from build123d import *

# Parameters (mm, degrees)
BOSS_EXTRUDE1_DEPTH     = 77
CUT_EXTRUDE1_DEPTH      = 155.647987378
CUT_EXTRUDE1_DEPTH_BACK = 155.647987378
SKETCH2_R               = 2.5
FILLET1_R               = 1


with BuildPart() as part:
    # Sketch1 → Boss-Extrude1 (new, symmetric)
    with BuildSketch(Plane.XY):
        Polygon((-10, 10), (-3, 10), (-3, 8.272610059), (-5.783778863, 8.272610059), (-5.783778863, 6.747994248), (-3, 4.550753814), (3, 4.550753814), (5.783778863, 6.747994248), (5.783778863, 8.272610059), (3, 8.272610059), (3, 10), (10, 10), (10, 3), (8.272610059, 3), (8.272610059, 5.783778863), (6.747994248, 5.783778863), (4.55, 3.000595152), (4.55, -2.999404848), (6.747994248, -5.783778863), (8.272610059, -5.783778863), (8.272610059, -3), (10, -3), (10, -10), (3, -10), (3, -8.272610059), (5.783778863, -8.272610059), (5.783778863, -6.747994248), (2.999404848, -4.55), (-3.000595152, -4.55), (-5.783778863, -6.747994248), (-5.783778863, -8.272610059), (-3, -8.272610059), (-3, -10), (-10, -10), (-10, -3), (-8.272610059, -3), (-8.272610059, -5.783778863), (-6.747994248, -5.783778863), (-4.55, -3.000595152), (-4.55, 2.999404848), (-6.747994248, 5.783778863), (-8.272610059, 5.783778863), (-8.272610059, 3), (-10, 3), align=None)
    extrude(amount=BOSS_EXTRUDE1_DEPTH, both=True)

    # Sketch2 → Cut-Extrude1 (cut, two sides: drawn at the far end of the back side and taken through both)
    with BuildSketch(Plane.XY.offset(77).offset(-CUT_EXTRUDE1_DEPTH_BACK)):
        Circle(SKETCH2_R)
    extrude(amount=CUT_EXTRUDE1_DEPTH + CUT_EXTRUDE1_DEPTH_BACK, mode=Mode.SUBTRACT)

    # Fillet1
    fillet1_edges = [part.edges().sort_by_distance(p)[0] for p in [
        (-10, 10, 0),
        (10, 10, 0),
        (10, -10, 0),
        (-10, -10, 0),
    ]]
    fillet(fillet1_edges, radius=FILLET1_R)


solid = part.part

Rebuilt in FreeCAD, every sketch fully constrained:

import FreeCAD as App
import Part
import Sketcher


def edges_at(feature, points):
    """Names of the edges that pass closest to the given points."""
    edges = feature.Shape.Edges
    near = lambda p: min(range(len(edges)), key=lambda i: edges[i].distToShape(Part.Vertex(*p))[0])
    return sorted({f"Edge{near(p) + 1}" for p in points})

doc = App.newDocument("Part")
params = doc.addObject("Spreadsheet::Sheet", "Params")
for row, (alias, value) in enumerate([
    ("sketch1_width", "7 mm"),
    ("sketch1_width2", "6 mm"),
    ("pad1_length", "154 mm"),
    ("sketch2_diameter", "5 mm"),
    ("fillet_radius", "1 mm"),
], start=1):
    params.set(f"A{row}", alias)
    params.set(f"B{row}", "=" + value)
    params.setAlias(f"B{row}", alias)

body = doc.addObject("PartDesign::Body", "Body")

# Sketch on XY plane
sketch1 = body.newObject("Sketcher::SketchObject", "Sketch")
sketch1.AttachmentSupport = (doc.getObject("XY_Plane"), [""])
sketch1.MapMode = "FlatFace"
sketch1.addGeometry([
    Part.LineSegment(App.Vector(-3, 10, 0), App.Vector(-10, 10, 0)),  # 0
    Part.LineSegment(App.Vector(-10, 10, 0), App.Vector(-10, 3, 0)),  # 1
    Part.LineSegment(App.Vector(-10, 3, 0), App.Vector(-8.3, 3, 0)),  # 2
    Part.LineSegment(App.Vector(-8.3, 3, 0), App.Vector(-8.3, 5.8, 0)),  # 3
    Part.LineSegment(App.Vector(-8.3, 5.8, 0), App.Vector(-6.7, 5.8, 0)),  # 4
    Part.LineSegment(App.Vector(-6.7, 5.8, 0), App.Vector(-4.5, 3, 0)),  # 5
    Part.LineSegment(App.Vector(-4.5, 3, 0), App.Vector(-4.5, -3, 0)),  # 6
    Part.LineSegment(App.Vector(-4.5, -3, 0), App.Vector(-6.7, -5.8, 0)),  # 7
    Part.LineSegment(App.Vector(-6.7, -5.8, 0), App.Vector(-8.3, -5.8, 0)),  # 8
    Part.LineSegment(App.Vector(-8.3, -5.8, 0), App.Vector(-8.3, -3, 0)),  # 9
    Part.LineSegment(App.Vector(-8.3, -3, 0), App.Vector(-10, -3, 0)),  # 10
    Part.LineSegment(App.Vector(-10, -3, 0), App.Vector(-10, -10, 0)),  # 11
    Part.LineSegment(App.Vector(-10, -10, 0), App.Vector(-3, -10, 0)),  # 12
    Part.LineSegment(App.Vector(-3, -10, 0), App.Vector(-3, -8.3, 0)),  # 13
    Part.LineSegment(App.Vector(-3, -8.3, 0), App.Vector(-5.8, -8.3, 0)),  # 14
    Part.LineSegment(App.Vector(-5.8, -8.3, 0), App.Vector(-5.8, -6.7, 0)),  # 15
    Part.LineSegment(App.Vector(-5.8, -6.7, 0), App.Vector(-3, -4.5, 0)),  # 16
    Part.LineSegment(App.Vector(-3, -4.5, 0), App.Vector(3, -4.5, 0)),  # 17
    Part.LineSegment(App.Vector(3, -4.5, 0), App.Vector(5.8, -6.7, 0)),  # 18
    Part.LineSegment(App.Vector(5.8, -6.7, 0), App.Vector(5.8, -8.3, 0)),  # 19
    Part.LineSegment(App.Vector(5.8, -8.3, 0), App.Vector(3, -8.3, 0)),  # 20
    Part.LineSegment(App.Vector(3, -8.3, 0), App.Vector(3, -10, 0)),  # 21
    Part.LineSegment(App.Vector(3, -10, 0), App.Vector(10, -10, 0)),  # 22
    Part.LineSegment(App.Vector(10, -10, 0), App.Vector(10, -3, 0)),  # 23
    Part.LineSegment(App.Vector(10, -3, 0), App.Vector(8.3, -3, 0)),  # 24
    Part.LineSegment(App.Vector(8.3, -3, 0), App.Vector(8.3, -5.8, 0)),  # 25
    Part.LineSegment(App.Vector(8.3, -5.8, 0), App.Vector(6.7, -5.8, 0)),  # 26
    Part.LineSegment(App.Vector(6.7, -5.8, 0), App.Vector(4.5, -3, 0)),  # 27
    Part.LineSegment(App.Vector(4.5, -3, 0), App.Vector(4.5, 3, 0)),  # 28
    Part.LineSegment(App.Vector(4.5, 3, 0), App.Vector(6.7, 5.8, 0)),  # 29
    Part.LineSegment(App.Vector(6.7, 5.8, 0), App.Vector(8.3, 5.8, 0)),  # 30
    Part.LineSegment(App.Vector(8.3, 5.8, 0), App.Vector(8.3, 3, 0)),  # 31
    Part.LineSegment(App.Vector(8.3, 3, 0), App.Vector(10, 3, 0)),  # 32
    Part.LineSegment(App.Vector(10, 3, 0), App.Vector(10, 10, 0)),  # 33
    Part.LineSegment(App.Vector(10, 10, 0), App.Vector(3, 10, 0)),  # 34
    Part.LineSegment(App.Vector(3, 10, 0), App.Vector(3, 8.3, 0)),  # 35
    Part.LineSegment(App.Vector(3, 8.3, 0), App.Vector(5.8, 8.3, 0)),  # 36
    Part.LineSegment(App.Vector(5.8, 8.3, 0), App.Vector(5.8, 6.7, 0)),  # 37
    Part.LineSegment(App.Vector(5.8, 6.7, 0), App.Vector(3, 4.6, 0)),  # 38
    Part.LineSegment(App.Vector(3, 4.6, 0), App.Vector(-3, 4.6, 0)),  # 39
    Part.LineSegment(App.Vector(-3, 4.6, 0), App.Vector(-5.8, 6.7, 0)),  # 40
    Part.LineSegment(App.Vector(-5.8, 6.7, 0), App.Vector(-5.8, 8.3, 0)),  # 41
    Part.LineSegment(App.Vector(-5.8, 8.3, 0), App.Vector(-3, 8.3, 0)),  # 42
    Part.LineSegment(App.Vector(-3, 8.3, 0), App.Vector(-3, 10, 0)),  # 43
], False)
sketch1.addConstraint([
    Sketcher.Constraint("Coincident", 0, 2, 1, 1),
    Sketcher.Constraint("Coincident", 1, 2, 2, 1),
    Sketcher.Constraint("Coincident", 2, 2, 3, 1),
    Sketcher.Constraint("Coincident", 3, 2, 4, 1),
    Sketcher.Constraint("Coincident", 4, 2, 5, 1),
    Sketcher.Constraint("Coincident", 5, 2, 6, 1),
    Sketcher.Constraint("Coincident", 6, 2, 7, 1),
    Sketcher.Constraint("Coincident", 7, 2, 8, 1),
    Sketcher.Constraint("Coincident", 8, 2, 9, 1),
    Sketcher.Constraint("Coincident", 9, 2, 10, 1),
    Sketcher.Constraint("Coincident", 10, 2, 11, 1),
    Sketcher.Constraint("Coincident", 11, 2, 12, 1),
    Sketcher.Constraint("Coincident", 12, 2, 13, 1),
    Sketcher.Constraint("Coincident", 13, 2, 14, 1),
    Sketcher.Constraint("Coincident", 14, 2, 15, 1),
    Sketcher.Constraint("Coincident", 15, 2, 16, 1),
    Sketcher.Constraint("Coincident", 16, 2, 17, 1),
    Sketcher.Constraint("Coincident", 17, 2, 18, 1),
    Sketcher.Constraint("Coincident", 18, 2, 19, 1),
    Sketcher.Constraint("Coincident", 19, 2, 20, 1),
    Sketcher.Constraint("Coincident", 20, 2, 21, 1),
    Sketcher.Constraint("Coincident", 21, 2, 22, 1),
    Sketcher.Constraint("Coincident", 22, 2, 23, 1),
    Sketcher.Constraint("Coincident", 23, 2, 24, 1),
    Sketcher.Constraint("Coincident", 24, 2, 25, 1),
    Sketcher.Constraint("Coincident", 25, 2, 26, 1),
    Sketcher.Constraint("Coincident", 26, 2, 27, 1),
    Sketcher.Constraint("Coincident", 27, 2, 28, 1),
    Sketcher.Constraint("Coincident", 28, 2, 29, 1),
    Sketcher.Constraint("Coincident", 29, 2, 30, 1),
    Sketcher.Constraint("Coincident", 30, 2, 31, 1),
    Sketcher.Constraint("Coincident", 31, 2, 32, 1),
    Sketcher.Constraint("Coincident", 32, 2, 33, 1),
    Sketcher.Constraint("Coincident", 33, 2, 34, 1),
    Sketcher.Constraint("Coincident", 34, 2, 35, 1),
    Sketcher.Constraint("Coincident", 35, 2, 36, 1),
    Sketcher.Constraint("Coincident", 36, 2, 37, 1),
    Sketcher.Constraint("Coincident", 37, 2, 38, 1),
    Sketcher.Constraint("Coincident", 38, 2, 39, 1),
    Sketcher.Constraint("Coincident", 39, 2, 40, 1),
    Sketcher.Constraint("Coincident", 40, 2, 41, 1),
    Sketcher.Constraint("Coincident", 41, 2, 42, 1),
    Sketcher.Constraint("Coincident", 42, 2, 43, 1),
    Sketcher.Constraint("Coincident", 43, 2, 0, 1),
    Sketcher.Constraint("Horizontal", 0),
    Sketcher.Constraint("Vertical", 1),
    Sketcher.Constraint("Horizontal", 2),
    Sketcher.Constraint("Vertical", 3),
    Sketcher.Constraint("Horizontal", 4),
    Sketcher.Constraint("Vertical", 6),
    Sketcher.Constraint("Horizontal", 8),
    Sketcher.Constraint("Vertical", 9),
    Sketcher.Constraint("Horizontal", 10),
    Sketcher.Constraint("Vertical", 11),
    Sketcher.Constraint("Horizontal", 12),
    Sketcher.Constraint("Vertical", 13),
    Sketcher.Constraint("Horizontal", 14),
    Sketcher.Constraint("Vertical", 15),
    Sketcher.Constraint("Horizontal", 17),
    Sketcher.Constraint("Vertical", 19),
    Sketcher.Constraint("Horizontal", 20),
    Sketcher.Constraint("Vertical", 21),
    Sketcher.Constraint("Horizontal", 22),
    Sketcher.Constraint("Vertical", 23),
    Sketcher.Constraint("Horizontal", 24),
    Sketcher.Constraint("Vertical", 25),
    Sketcher.Constraint("Horizontal", 26),
    Sketcher.Constraint("Vertical", 28),
    Sketcher.Constraint("Horizontal", 30),
    Sketcher.Constraint("Vertical", 31),
    Sketcher.Constraint("Horizontal", 32),
    Sketcher.Constraint("Vertical", 33),
    Sketcher.Constraint("Horizontal", 34),
    Sketcher.Constraint("Vertical", 35),
    Sketcher.Constraint("Horizontal", 36),
    Sketcher.Constraint("Vertical", 37),
    Sketcher.Constraint("Horizontal", 39),
    Sketcher.Constraint("Vertical", 41),
    Sketcher.Constraint("Horizontal", 42),
    Sketcher.Constraint("Vertical", 43),
    Sketcher.Constraint("Symmetric", 0, 2, 22, 2, -1, 1),
    Sketcher.Constraint("Symmetric", 2, 2, 24, 2, -1, 1),
    Sketcher.Constraint("Symmetric", 4, 2, 26, 2, -1, 1),
    Sketcher.Constraint("Symmetric", 5, 2, 27, 2, -1, 1),
    Sketcher.Constraint("Symmetric", 7, 2, 29, 2, -1, 1),
    Sketcher.Constraint("Symmetric", 9, 2, 31, 2, -1, 1),
    Sketcher.Constraint("Symmetric", 11, 2, 33, 2, -1, 1),
    Sketcher.Constraint("Symmetric", 13, 2, 35, 2, -1, 1),
    Sketcher.Constraint("Symmetric", 15, 2, 37, 2, -1, 1),
    Sketcher.Constraint("Symmetric", 18, 2, 40, 2, -1, 1),
    Sketcher.Constraint("Symmetric", 20, 2, 42, 2, -1, 1),
    Sketcher.Constraint("Symmetric", 15, 2, 18, 2, -2),
    Sketcher.Constraint("Symmetric", 13, 2, 20, 2, -2),
    Sketcher.Constraint("Symmetric", 11, 2, 22, 2, -2),
    Sketcher.Constraint("Symmetric", 9, 2, 24, 2, -2),
    Sketcher.Constraint("Symmetric", 7, 2, 26, 2, -2),
    Sketcher.Constraint("Parallel", 7, 29),
    Sketcher.Constraint("Vertical", 35, 2, 38, 2),
    Sketcher.Constraint("Vertical", 13, 2, 39, 2),
    Sketcher.Constraint("Equal", 17, 39),
    Sketcher.Constraint("Equal", 34, 1),
    Sketcher.Constraint("Equal", 42, 3),
    Sketcher.Constraint("Equal", 39, 6),
    Sketcher.Constraint("Equal", 32, 13),
    Sketcher.Constraint("Equal", 30, 15),
    Sketcher.Constraint("Equal", 7, 16),
    Sketcher.Constraint("Equal", 5, 18),
    Sketcher.Constraint("Equal", 29, 38),
    Sketcher.Constraint("DistanceX", 0, 2, 0, 1, 7.0),
    Sketcher.Constraint("DistanceX", 17, 1, 17, 2, 6.0),
    Sketcher.Constraint("DistanceY", -1, 1, 0, 2, 10.0),
    Sketcher.Constraint("DistanceX", 5, 2, -1, 1, 4.55),
    Sketcher.Constraint("DistanceX", 2, 1, 2, 2, 1.72739),
    Sketcher.Constraint("DistanceX", 14, 2, 14, 1, 2.783779),
    Sketcher.Constraint("DistanceY", 15, 2, 6, 2, 3.747399),
    Sketcher.Constraint("Distance", 5, 3.547382),
])
sketch1.setExpression("Constraints[108]", "Params.sketch1_width")
sketch1.setExpression("Constraints[109]", "Params.sketch1_width2")
pad1 = body.newObject("PartDesign::Pad", "Pad")
pad1.Profile = sketch1
pad1.setExpression("Length", "Params.pad1_length")
pad1.Midplane = True

# Sketch on XY plane
sketch2 = body.newObject("Sketcher::SketchObject", "Sketch001")
sketch2.AttachmentSupport = (doc.getObject("XY_Plane"), [""])
sketch2.MapMode = "FlatFace"
sketch2.AttachmentOffset = App.Placement(App.Vector(0, 0, 77), App.Rotation())
sketch2.addGeometry(Part.Circle(App.Vector(0, 0, 0), App.Vector(0, 0, 1), 2.5), False)
sketch2.addConstraint([
    Sketcher.Constraint("Coincident", 0, 3, -1, 1),
    Sketcher.Constraint("Diameter", 0, 5.0),
])
sketch2.setExpression("Constraints[1]", "Params.sketch2_diameter")
pocket1 = body.newObject("PartDesign::Pocket", "Pocket")
pocket1.Profile = sketch2
pocket1.Type = "ThroughAll"
pocket1.Midplane = True
doc.recompute()

fillet = body.newObject("PartDesign::Fillet", "Fillet")
fillet.Base = (pocket1, edges_at(pocket1, [
    (-10, 10, 0),
    (10, 10, 0),
    (10, -10, 0),
    (-10, -10, 0),
]))
fillet.setExpression("Radius", "Params.fillet_radius")

doc.recompute()
